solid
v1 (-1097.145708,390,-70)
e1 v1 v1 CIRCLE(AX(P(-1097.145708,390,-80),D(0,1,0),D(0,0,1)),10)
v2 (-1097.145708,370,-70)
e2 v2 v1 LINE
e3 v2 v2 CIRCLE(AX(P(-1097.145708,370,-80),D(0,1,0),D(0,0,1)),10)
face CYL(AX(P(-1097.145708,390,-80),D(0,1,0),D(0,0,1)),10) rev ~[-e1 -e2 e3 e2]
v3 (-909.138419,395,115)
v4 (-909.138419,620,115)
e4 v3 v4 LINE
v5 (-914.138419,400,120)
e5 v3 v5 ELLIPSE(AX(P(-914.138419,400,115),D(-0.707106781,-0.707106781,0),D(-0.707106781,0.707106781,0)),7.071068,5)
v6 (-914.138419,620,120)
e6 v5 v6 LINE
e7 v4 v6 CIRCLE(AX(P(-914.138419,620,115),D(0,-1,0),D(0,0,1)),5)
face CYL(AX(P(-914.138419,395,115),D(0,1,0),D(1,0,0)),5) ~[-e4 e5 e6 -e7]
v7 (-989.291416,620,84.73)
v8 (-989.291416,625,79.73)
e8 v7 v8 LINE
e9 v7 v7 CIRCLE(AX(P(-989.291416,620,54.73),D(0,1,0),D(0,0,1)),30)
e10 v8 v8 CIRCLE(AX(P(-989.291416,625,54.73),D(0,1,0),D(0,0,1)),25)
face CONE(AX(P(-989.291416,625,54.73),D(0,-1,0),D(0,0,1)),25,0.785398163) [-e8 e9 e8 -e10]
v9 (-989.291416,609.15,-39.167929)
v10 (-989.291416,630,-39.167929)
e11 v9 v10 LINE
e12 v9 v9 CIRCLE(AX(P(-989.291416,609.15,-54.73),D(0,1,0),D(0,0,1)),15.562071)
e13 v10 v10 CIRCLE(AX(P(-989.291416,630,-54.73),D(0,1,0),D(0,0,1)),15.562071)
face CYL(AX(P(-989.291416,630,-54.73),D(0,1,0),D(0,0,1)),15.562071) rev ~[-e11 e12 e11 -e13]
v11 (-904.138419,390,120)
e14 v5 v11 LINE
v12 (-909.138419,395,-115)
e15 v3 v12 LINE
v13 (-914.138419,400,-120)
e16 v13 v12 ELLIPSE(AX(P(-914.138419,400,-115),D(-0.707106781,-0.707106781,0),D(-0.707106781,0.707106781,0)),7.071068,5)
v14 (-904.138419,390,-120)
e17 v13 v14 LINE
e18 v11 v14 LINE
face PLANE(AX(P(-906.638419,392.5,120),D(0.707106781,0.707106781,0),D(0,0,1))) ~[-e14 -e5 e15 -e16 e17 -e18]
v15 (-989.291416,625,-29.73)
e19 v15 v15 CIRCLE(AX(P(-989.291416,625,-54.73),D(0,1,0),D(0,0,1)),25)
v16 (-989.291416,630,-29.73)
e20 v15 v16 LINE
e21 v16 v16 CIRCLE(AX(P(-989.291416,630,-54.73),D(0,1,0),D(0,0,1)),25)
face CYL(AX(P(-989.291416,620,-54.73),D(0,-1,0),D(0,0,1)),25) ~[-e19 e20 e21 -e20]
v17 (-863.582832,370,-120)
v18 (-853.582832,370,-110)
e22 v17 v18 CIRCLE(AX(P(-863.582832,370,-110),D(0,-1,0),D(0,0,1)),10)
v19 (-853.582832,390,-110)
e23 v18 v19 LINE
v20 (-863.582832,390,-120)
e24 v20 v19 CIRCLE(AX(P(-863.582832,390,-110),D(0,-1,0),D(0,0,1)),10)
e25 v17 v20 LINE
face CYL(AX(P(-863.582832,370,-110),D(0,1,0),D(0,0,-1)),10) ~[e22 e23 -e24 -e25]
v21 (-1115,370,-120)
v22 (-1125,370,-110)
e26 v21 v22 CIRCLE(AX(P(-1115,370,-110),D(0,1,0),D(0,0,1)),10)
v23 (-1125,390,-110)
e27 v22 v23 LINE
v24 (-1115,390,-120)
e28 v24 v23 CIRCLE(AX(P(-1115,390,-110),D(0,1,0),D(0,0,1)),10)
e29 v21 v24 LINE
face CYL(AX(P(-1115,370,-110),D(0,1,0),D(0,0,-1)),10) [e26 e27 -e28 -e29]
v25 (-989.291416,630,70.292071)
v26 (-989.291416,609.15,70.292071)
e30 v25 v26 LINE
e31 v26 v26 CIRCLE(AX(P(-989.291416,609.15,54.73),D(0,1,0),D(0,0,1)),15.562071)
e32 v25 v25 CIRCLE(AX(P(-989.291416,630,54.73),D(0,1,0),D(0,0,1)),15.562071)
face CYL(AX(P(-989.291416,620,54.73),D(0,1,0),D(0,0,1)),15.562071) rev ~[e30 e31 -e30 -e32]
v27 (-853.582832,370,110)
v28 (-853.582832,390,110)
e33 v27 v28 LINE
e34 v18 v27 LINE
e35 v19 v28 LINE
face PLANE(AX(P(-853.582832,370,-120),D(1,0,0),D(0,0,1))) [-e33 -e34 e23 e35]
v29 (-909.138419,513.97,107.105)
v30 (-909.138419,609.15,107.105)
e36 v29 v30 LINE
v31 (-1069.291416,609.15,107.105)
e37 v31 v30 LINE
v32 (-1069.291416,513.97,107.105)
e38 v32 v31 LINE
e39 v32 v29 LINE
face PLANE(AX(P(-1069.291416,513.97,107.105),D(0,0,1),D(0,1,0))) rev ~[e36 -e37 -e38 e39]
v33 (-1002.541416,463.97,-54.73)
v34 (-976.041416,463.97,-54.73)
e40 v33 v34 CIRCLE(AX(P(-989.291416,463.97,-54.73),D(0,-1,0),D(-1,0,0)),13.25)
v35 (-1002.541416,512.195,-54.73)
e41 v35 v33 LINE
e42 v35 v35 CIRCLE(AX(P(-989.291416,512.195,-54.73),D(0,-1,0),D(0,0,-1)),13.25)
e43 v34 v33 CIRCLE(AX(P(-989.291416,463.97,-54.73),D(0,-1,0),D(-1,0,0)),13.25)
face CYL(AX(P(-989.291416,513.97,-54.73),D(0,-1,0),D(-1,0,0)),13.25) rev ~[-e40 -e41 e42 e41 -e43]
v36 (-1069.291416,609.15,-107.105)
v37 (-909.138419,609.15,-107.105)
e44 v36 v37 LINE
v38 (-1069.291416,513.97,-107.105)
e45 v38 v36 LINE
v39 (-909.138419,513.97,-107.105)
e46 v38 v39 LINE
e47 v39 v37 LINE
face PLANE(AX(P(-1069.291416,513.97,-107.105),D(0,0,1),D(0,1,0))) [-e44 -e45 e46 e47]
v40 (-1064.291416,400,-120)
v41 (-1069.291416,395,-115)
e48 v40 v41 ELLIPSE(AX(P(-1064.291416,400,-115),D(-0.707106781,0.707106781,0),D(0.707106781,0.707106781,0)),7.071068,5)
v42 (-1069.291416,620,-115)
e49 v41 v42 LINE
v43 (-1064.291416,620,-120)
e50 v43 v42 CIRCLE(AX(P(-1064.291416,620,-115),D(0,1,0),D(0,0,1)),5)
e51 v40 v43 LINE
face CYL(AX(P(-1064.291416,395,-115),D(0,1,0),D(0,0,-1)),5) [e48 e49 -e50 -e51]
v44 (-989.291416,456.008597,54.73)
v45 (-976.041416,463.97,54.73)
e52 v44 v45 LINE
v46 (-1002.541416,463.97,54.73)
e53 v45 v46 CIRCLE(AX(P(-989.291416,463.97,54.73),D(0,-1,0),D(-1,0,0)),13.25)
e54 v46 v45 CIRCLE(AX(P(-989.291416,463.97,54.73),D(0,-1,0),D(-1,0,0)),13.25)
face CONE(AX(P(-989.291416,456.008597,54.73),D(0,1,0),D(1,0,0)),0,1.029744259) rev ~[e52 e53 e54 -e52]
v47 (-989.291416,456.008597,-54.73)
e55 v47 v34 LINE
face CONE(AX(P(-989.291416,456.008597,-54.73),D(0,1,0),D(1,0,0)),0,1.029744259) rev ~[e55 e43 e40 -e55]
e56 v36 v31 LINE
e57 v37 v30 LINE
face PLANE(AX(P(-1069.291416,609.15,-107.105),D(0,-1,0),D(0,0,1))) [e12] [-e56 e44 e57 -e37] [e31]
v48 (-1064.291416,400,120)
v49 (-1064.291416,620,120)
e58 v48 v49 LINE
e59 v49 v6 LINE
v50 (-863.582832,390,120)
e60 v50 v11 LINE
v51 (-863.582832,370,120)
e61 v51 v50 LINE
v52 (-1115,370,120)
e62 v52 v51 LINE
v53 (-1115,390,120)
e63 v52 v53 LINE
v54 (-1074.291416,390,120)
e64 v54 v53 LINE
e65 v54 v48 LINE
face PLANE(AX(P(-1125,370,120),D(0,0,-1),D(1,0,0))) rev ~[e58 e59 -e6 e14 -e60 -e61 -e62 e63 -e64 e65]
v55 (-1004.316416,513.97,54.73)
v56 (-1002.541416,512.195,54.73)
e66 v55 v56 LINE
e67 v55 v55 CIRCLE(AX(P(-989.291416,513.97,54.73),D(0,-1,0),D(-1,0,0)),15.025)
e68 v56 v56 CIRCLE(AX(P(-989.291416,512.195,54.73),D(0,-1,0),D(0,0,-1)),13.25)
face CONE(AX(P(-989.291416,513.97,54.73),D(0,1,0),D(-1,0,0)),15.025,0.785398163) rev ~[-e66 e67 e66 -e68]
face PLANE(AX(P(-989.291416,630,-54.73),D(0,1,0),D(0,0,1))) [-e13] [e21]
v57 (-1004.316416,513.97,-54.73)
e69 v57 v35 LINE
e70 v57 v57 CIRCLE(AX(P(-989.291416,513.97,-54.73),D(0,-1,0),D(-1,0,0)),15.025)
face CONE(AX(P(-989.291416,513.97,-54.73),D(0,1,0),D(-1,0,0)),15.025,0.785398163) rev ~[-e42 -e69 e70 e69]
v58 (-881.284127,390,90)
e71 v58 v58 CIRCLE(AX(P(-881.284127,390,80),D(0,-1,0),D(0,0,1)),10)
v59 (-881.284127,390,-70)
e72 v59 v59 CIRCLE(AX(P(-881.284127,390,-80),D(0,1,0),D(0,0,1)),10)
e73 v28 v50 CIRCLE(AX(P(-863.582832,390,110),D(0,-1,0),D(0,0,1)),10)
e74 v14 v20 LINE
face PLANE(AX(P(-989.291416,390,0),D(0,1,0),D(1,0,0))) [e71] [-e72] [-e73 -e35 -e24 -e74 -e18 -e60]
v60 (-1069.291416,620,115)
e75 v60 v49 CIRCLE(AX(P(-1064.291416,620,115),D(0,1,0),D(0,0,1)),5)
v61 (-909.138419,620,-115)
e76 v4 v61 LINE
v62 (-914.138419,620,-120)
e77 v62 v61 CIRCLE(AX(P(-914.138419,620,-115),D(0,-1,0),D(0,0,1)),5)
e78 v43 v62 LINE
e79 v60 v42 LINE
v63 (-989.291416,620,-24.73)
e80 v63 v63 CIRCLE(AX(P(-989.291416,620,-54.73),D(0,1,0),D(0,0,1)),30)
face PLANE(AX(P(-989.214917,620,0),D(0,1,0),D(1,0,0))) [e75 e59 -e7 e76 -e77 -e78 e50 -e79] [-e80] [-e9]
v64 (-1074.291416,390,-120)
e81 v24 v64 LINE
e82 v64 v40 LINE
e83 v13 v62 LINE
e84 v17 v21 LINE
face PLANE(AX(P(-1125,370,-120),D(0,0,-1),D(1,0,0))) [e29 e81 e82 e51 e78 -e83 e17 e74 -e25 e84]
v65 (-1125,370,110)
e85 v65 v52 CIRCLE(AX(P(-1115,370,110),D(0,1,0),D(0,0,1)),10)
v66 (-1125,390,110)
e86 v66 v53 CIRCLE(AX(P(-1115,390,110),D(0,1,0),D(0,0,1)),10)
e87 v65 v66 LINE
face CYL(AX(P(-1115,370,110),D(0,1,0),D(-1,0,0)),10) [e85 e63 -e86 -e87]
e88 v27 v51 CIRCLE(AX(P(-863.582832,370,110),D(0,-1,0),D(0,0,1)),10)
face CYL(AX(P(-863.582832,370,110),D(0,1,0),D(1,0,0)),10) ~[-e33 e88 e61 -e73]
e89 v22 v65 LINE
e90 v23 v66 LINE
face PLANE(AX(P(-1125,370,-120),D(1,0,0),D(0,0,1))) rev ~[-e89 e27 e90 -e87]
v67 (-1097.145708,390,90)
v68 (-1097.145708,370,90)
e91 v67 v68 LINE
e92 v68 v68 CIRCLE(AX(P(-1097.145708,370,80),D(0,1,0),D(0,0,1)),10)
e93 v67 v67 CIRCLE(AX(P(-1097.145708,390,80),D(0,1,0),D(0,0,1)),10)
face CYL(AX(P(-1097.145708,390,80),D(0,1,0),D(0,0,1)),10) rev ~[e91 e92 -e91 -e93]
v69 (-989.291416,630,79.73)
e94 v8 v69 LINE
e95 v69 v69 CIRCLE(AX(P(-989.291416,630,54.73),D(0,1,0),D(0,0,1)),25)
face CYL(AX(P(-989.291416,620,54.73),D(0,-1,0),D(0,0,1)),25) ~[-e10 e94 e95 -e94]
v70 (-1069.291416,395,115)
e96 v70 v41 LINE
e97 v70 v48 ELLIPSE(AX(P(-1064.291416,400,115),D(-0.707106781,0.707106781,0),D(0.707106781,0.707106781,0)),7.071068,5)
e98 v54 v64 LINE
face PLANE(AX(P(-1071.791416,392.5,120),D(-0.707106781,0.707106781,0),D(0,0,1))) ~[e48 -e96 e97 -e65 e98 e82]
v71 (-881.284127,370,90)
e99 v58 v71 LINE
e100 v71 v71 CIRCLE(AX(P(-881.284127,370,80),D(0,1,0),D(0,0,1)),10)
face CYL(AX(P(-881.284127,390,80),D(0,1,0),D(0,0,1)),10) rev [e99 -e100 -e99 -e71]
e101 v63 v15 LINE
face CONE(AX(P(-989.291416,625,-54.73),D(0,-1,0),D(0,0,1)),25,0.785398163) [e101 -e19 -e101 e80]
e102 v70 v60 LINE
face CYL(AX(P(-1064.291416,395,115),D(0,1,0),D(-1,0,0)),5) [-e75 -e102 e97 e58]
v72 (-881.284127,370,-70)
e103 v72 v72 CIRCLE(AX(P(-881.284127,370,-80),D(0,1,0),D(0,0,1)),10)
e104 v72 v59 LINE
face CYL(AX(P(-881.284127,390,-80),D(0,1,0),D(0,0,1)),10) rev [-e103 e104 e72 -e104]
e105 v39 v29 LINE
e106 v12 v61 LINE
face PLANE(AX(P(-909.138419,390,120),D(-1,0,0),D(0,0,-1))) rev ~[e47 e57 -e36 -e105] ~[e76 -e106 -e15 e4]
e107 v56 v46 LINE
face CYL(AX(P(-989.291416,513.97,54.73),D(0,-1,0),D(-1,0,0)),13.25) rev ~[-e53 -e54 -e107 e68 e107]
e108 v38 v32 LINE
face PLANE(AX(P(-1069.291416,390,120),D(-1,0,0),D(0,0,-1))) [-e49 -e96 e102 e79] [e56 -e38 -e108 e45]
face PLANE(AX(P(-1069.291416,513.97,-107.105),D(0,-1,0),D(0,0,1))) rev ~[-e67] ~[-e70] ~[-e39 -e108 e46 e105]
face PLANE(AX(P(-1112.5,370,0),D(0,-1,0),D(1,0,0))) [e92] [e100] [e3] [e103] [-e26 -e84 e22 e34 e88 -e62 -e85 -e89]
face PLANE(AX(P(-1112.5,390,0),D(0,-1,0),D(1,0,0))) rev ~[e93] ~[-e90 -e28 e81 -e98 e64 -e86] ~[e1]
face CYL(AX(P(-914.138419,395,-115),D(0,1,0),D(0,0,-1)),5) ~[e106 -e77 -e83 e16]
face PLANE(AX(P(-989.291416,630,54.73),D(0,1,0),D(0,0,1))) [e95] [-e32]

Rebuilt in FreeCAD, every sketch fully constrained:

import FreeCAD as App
import Part
import Sketcher
from FreeCAD import Vector


def edges_at(feature, points):
    """Names of the edges that pass closest to the given points."""
    edges = feature.Shape.Edges
    near = lambda p: min(range(len(edges)), key=lambda i: edges[i].distToShape(Part.Vertex(*p))[0])
    return sorted({f"Edge{near(p) + 1}" for p in points})


def add_polygon(sketch, points):
    """Adds a closed chain of lines whose ends are joined by coincident constraints."""
    first, n = sketch.GeometryCount, len(points)
    for a, b in zip(points, points[1:] + points[:1]):
        sketch.addGeometry(Part.LineSegment(App.Vector(*a, 0), App.Vector(*b, 0)), False)
    for i in range(n):
        sketch.addConstraint(Sketcher.Constraint("Coincident", first + i, 2, first + (i + 1) % n, 1))

doc = App.newDocument("Part")
params = doc.addObject("Spreadsheet::Sheet", "Params")
for row, (alias, value) in enumerate([
    ("sketch1_height", "240 mm"),
    ("pad1_length", "20 mm"),
    ("sketch2_height", "240 mm"),
    ("pad2_length", "230 mm"),
    ("sketch3_width", "95.18 mm"),
    ("sketch3_height", "214.21 mm"),
    ("sketch4_diameter", "26.5 mm"),
    ("hole_diameter", "26.5 mm"),
    ("hole_depth", "50 mm"),
    ("hole_csink_diameter", "30.05 mm"),
    ("pocket2_length", "20 mm"),
    ("sketch6_diameter", "50 mm"),
    ("pad3_length", "10 mm"),
    ("pocket3_length", "59 mm"),
    ("sketch8_width", "25 mm"),
    ("sketch8_height", "240 mm"),
    ("pad4_length", "20 mm"),
    ("sketch9_diameter", "20 mm"),
    ("pocket4_length", "50 mm"),
    ("chamfer_size", "5 mm"),
    ("fillet_radius", "10 mm"),
    ("fillet2_radius", "5 mm"),
], start=1):
    params.set(f"A{row}", alias)
    params.set(f"B{row}", "=" + value)
    params.setAlias(f"B{row}", alias)

body = doc.addObject("PartDesign::Body", "Body")

sketch1 = body.newObject("Sketcher::SketchObject", "Sketch")
sketch1.AttachmentSupport = (doc.getObject("XZ_Plane"), [""])
sketch1.MapMode = "FlatFace"
sketch1.AttachmentOffset = App.Placement(Vector(0, 0, -370), App.Rotation())
add_polygon(sketch1, [(-1100, -120), (-1100, 120), (-879, 120), (-879, -120)])
sketch1.addConstraint([
    Sketcher.Constraint("Vertical", 0),
    Sketcher.Constraint("Horizontal", 1),
    Sketcher.Constraint("Vertical", 2),
    Sketcher.Constraint("Horizontal", 3),
    Sketcher.Constraint("DistanceY", 0, 1, 0, 2, 240.0),
    Sketcher.Constraint("DistanceX", 0, 2, -1, 1, 1100.0),
    Sketcher.Constraint("DistanceY", -1, 1, 0, 2, 120.0),
    Sketcher.Constraint("DistanceX", 1, 1, 1, 2, 221.417168),
])
sketch1.setExpression("Constraints[8]", "Params.sketch1_height")
pad1 = body.newObject("PartDesign::Pad", "Pad")
pad1.Profile = sketch1
pad1.setExpression("Length", "Params.pad1_length")
pad1.Reversed = True

sketch2 = body.newObject("Sketcher::SketchObject", "Sketch001")
sketch2.AttachmentSupport = (doc.getObject("XZ_Plane"), [""])
sketch2.MapMode = "FlatFace"
sketch2.AttachmentOffset = App.Placement(Vector(0, 0, -390), App.Rotation())
add_polygon(sketch2, [(-1069, -120), (-1069, 120), (-909, 120), (-909, -120)])
sketch2.addConstraint([
    Sketcher.Constraint("Vertical", 0),
    Sketcher.Constraint("Horizontal", 1),
    Sketcher.Constraint("Vertical", 2),
    Sketcher.Constraint("Horizontal", 3),
    Sketcher.Constraint("DistanceY", 0, 1, 0, 2, 240.0),
    Sketcher.Constraint("DistanceY", -1, 1, 0, 2, 120.0),
    Sketcher.Constraint("DistanceX", 1, 1, 1, 2, 160.152997),
    Sketcher.Constraint("DistanceX", 1, 2, -1, 1, 909.138419),
])
sketch2.setExpression("Constraints[8]", "Params.sketch2_height")
pad2 = body.newObject("PartDesign::Pad", "Pad001")
pad2.Profile = sketch2
pad2.setExpression("Length", "Params.pad2_length")
pad2.Reversed = True

sketch3 = body.newObject("Sketcher::SketchObject", "Sketch002")
sketch3.AttachmentSupport = (doc.getObject("YZ_Plane"), [""])
sketch3.MapMode = "FlatFace"
sketch3.AttachmentOffset = App.Placement(Vector(0, 0, -1069.291416), App.Rotation())
add_polygon(sketch3, [(609, -107), (514, -107), (514, 107), (609, 107)])
sketch3.addConstraint([
    Sketcher.Constraint("Horizontal", 0),
    Sketcher.Constraint("Vertical", 1),
    Sketcher.Constraint("Horizontal", 2),
    Sketcher.Constraint("Vertical", 3),
    Sketcher.Constraint("DistanceX", 0, 2, 0, 1, 95.18),
    Sketcher.Constraint("DistanceY", 1, 1, 1, 2, 214.21),
    Sketcher.Constraint("DistanceX", -1, 1, 0, 2, 513.97),
    Sketcher.Constraint("DistanceY", 0, 2, -1, 1, 107.105),
])
sketch3.setExpression("Constraints[8]", "Params.sketch3_width")
sketch3.setExpression("Constraints[9]", "Params.sketch3_height")
pocket1 = body.newObject("PartDesign::Pocket", "Pocket")
pocket1.Profile = sketch3
pocket1.Type = "ThroughAll"
pocket1.Reversed = True

sketch4 = body.newObject("Sketcher::SketchObject", "Sketch003")
sketch4.AttachmentSupport = (doc.getObject("XZ_Plane"), [""])
sketch4.MapMode = "FlatFace"
sketch4.AttachmentOffset = App.Placement(Vector(0, 0, -513.97), App.Rotation())
sketch4.addGeometry([
    Part.Circle(Vector(-989, -55, 0), Vector(0, 0, 1), 13),
    Part.Circle(Vector(-989, 55, 0), Vector(0, 0, 1), 13),
], False)
sketch4.addConstraint([
    Sketcher.Constraint("Equal", 0, 1),
    Sketcher.Constraint("Symmetric", 0, 3, 1, 3, -1),
    Sketcher.Constraint("Diameter", 0, 26.5),
    Sketcher.Constraint("DistanceY", 0, 3, -1, 1, 54.73),
    Sketcher.Constraint("DistanceX", 0, 3, -1, 1, 989.291416),
])
sketch4.setExpression("Constraints[2]", "Params.sketch4_diameter")
doc.recompute()
hole = body.newObject("PartDesign::Hole", "Hole")
hole.Profile = sketch4
hole.ThreadType = "None"
hole.setExpression("Diameter", "Params.hole_diameter")
hole.DepthType = "Dimension"
hole.setExpression("Depth", "Params.hole_depth")
hole.DrillPoint = "Angled"
hole.DrillPointAngle = 118
hole.HoleCutType = "Countersink"
hole.setExpression("HoleCutDiameter", "Params.hole_csink_diameter")
hole.HoleCutCountersinkAngle = 90
hole.Reversed = True

sketch5 = body.newObject("Sketcher::SketchObject", "Sketch004")
sketch5.AttachmentSupport = (doc.getObject("XZ_Plane"), [""])
sketch5.MapMode = "FlatFace"
sketch5.AttachmentOffset = App.Placement(Vector(0, 0, -620), App.Rotation())
sketch5.addGeometry([
    Part.Circle(Vector(-989, -55, 0), Vector(0, 0, 1), 16),
    Part.Circle(Vector(-989, 55, 0), Vector(0, 0, 1), 16),
], False)
sketch5.addConstraint([
    Sketcher.Constraint("Equal", 0, 1),
    Sketcher.Constraint("Symmetric", 0, 3, 1, 3, -1),
    Sketcher.Constraint("DistanceY", 0, 3, -1, 1, 54.73),
    Sketcher.Constraint("Diameter", 0, 31.124142),
    Sketcher.Constraint("DistanceX", 0, 3, -1, 1, 989.291416),
])
pocket2 = body.newObject("PartDesign::Pocket", "Pocket001")
pocket2.Profile = sketch5
pocket2.setExpression("Length", "Params.pocket2_length")
pocket2.Reversed = True

sketch6 = body.newObject("Sketcher::SketchObject", "Sketch005")
sketch6.AttachmentSupport = (doc.getObject("XZ_Plane"), [""])
sketch6.MapMode = "FlatFace"
sketch6.AttachmentOffset = App.Placement(Vector(0, 0, -620), App.Rotation())
sketch6.addGeometry([
    Part.Circle(Vector(-989, -55, 0), Vector(0, 0, 1), 25),
    Part.Circle(Vector(-989, 55, 0), Vector(0, 0, 1), 25),
], False)
sketch6.addConstraint([
    Sketcher.Constraint("Equal", 0, 1),
    Sketcher.Constraint("Symmetric", 0, 3, 1, 3, -1),
    Sketcher.Constraint("Diameter", 0, 50.0),
    Sketcher.Constraint("DistanceY", 0, 3, -1, 1, 54.73),
    Sketcher.Constraint("DistanceX", 0, 3, -1, 1, 989.291416),
])
sketch6.setExpression("Constraints[2]", "Params.sketch6_diameter")
pad3 = body.newObject("PartDesign::Pad", "Pad002")
pad3.Profile = sketch6
pad3.setExpression("Length", "Params.pad3_length")
pad3.Reversed = True

sketch7 = body.newObject("Sketcher::SketchObject", "Sketch006")
sketch7.AttachmentSupport = (doc.getObject("XZ_Plane"), [""])
sketch7.MapMode = "FlatFace"
sketch7.AttachmentOffset = App.Placement(Vector(0, 0, -630), App.Rotation())
sketch7.addGeometry([
    Part.Circle(Vector(-989, -55, 0), Vector(0, 0, 1), 16),
    Part.Circle(Vector(-989, 55, 0), Vector(0, 0, 1), 16),
], False)
sketch7.addConstraint([
    Sketcher.Constraint("Equal", 0, 1),
    Sketcher.Constraint("Symmetric", 0, 3, 1, 3, -1),
    Sketcher.Constraint("DistanceY", 0, 3, -1, 1, 54.73),
    Sketcher.Constraint("Diameter", 0, 31.124142),
    Sketcher.Constraint("DistanceX", 0, 3, -1, 1, 989.291416),
])
pocket3 = body.newObject("PartDesign::Pocket", "Pocket002")
pocket3.Profile = sketch7
pocket3.setExpression("Length", "Params.pocket3_length")
pocket3.Midplane = True

sketch8 = body.newObject("Sketcher::SketchObject", "Sketch007")
sketch8.AttachmentSupport = (doc.getObject("XZ_Plane"), [""])
sketch8.MapMode = "FlatFace"
sketch8.AttachmentOffset = App.Placement(Vector(0, 0, -370), App.Rotation())
add_polygon(sketch8, [(-1125, 120), (-1125, -120), (-1100, -120), (-1100, 120)])
add_polygon(sketch8, [(-879, 120), (-879, -120), (-854, -120), (-854, 120)])
sketch8.addConstraint([
    Sketcher.Constraint("Vertical", 0),
    Sketcher.Constraint("Horizontal", 1),
    Sketcher.Constraint("Vertical", 2),
    Sketcher.Constraint("Horizontal", 3),
    Sketcher.Constraint("Vertical", 4),
    Sketcher.Constraint("Horizontal", 5),
    Sketcher.Constraint("Vertical", 6),
    Sketcher.Constraint("Horizontal", 7),
    Sketcher.Constraint("Horizontal", 1, 2, 4, 2),
    Sketcher.Constraint("Horizontal", 3, 2, 6, 2),
    Sketcher.Constraint("Equal", 3, 5),
    Sketcher.Constraint("DistanceX", 1, 1, 1, 2, 25.0),
    Sketcher.Constraint("DistanceY", 0, 2, 0, 1, 240.0),
    Sketcher.Constraint("DistanceX", 0, 2, -1, 1, 1125.0),
    Sketcher.Constraint("DistanceY", 0, 2, -1, 1, 120.0),
    Sketcher.Constraint("DistanceX", 4, 2, -1, 1, 878.582832),
])
sketch8.setExpression("Constraints[19]", "Params.sketch8_width")
sketch8.setExpression("Constraints[20]", "Params.sketch8_height")
pad4 = body.newObject("PartDesign::Pad", "Pad003")
pad4.Profile = sketch8
pad4.setExpression("Length", "Params.pad4_length")
pad4.Reversed = True

sketch9 = body.newObject("Sketcher::SketchObject", "Sketch008")
sketch9.AttachmentSupport = (doc.getObject("XZ_Plane"), [""])
sketch9.MapMode = "FlatFace"
sketch9.AttachmentOffset = App.Placement(Vector(0, 0, -390), App.Rotation())
sketch9.addGeometry([
    Part.Circle(Vector(-1097, 80, 0), Vector(0, 0, 1), 10),
    Part.Circle(Vector(-1097, -80, 0), Vector(0, 0, 1), 10),
], False)
sketch9.addConstraint([
    Sketcher.Constraint("Equal", 0, 1),
    Sketcher.Constraint("Symmetric", 0, 3, 1, 3, -1),
    Sketcher.Constraint("Diameter", 0, 20.0),
    Sketcher.Constraint("DistanceY", -1, 1, 0, 3, 80.0),
    Sketcher.Constraint("DistanceX", 0, 3, -1, 1, 1097.145708),
])
sketch9.setExpression("Constraints[2]", "Params.sketch9_diameter")
pocket4 = body.newObject("PartDesign::Pocket", "Pocket003")
pocket4.Profile = sketch9
pocket4.setExpression("Length", "Params.pocket4_length")
pocket4.Midplane = True
doc.recompute()

datumplane = body.newObject("PartDesign::Plane", "DatumPlane")
datumplane.AttachmentSupport = (doc.getObject("YZ_Plane"), [""])
datumplane.MapMode = "FlatFace"
datumplane.AttachmentOffset = App.Placement(Vector(0, 0, -989.214917), App.Rotation())
mirrored = body.newObject("PartDesign::Mirrored", "Mirrored")
mirrored.Originals = [pocket4]
mirrored.MirrorPlane = (datumplane, [""])
body.Tip = mirrored
doc.recompute()

chamfer = body.newObject("PartDesign::Chamfer", "Chamfer")
chamfer.Base = (mirrored, edges_at(mirrored, [
    (-1069.291, 390, 0),
    (-909.138, 390, 0),
    (-989.291, 620, -79.73),
    (-989.291, 620, 29.73),
]))
chamfer.setExpression("Size", "Params.chamfer_size")
doc.recompute()

fillet = body.newObject("PartDesign::Fillet", "Fillet")
fillet.Base = (chamfer, edges_at(chamfer, [
    (-853.583, 380, -120),
    (-853.583, 380, 120),
    (-1125, 380, 120),
    (-1125, 380, -120),
]))
fillet.setExpression("Radius", "Params.fillet_radius")
doc.recompute()

fillet2 = body.newObject("PartDesign::Fillet", "Fillet001")
fillet2.Base = (fillet, edges_at(fillet, [
    (-1069.291, 507.5, -120),
    (-1069.291, 507.5, 120),
    (-909.138, 507.5, 120),
    (-909.138, 507.5, -120),
]))
fillet2.setExpression("Radius", "Params.fillet2_radius")

doc.recompute()
